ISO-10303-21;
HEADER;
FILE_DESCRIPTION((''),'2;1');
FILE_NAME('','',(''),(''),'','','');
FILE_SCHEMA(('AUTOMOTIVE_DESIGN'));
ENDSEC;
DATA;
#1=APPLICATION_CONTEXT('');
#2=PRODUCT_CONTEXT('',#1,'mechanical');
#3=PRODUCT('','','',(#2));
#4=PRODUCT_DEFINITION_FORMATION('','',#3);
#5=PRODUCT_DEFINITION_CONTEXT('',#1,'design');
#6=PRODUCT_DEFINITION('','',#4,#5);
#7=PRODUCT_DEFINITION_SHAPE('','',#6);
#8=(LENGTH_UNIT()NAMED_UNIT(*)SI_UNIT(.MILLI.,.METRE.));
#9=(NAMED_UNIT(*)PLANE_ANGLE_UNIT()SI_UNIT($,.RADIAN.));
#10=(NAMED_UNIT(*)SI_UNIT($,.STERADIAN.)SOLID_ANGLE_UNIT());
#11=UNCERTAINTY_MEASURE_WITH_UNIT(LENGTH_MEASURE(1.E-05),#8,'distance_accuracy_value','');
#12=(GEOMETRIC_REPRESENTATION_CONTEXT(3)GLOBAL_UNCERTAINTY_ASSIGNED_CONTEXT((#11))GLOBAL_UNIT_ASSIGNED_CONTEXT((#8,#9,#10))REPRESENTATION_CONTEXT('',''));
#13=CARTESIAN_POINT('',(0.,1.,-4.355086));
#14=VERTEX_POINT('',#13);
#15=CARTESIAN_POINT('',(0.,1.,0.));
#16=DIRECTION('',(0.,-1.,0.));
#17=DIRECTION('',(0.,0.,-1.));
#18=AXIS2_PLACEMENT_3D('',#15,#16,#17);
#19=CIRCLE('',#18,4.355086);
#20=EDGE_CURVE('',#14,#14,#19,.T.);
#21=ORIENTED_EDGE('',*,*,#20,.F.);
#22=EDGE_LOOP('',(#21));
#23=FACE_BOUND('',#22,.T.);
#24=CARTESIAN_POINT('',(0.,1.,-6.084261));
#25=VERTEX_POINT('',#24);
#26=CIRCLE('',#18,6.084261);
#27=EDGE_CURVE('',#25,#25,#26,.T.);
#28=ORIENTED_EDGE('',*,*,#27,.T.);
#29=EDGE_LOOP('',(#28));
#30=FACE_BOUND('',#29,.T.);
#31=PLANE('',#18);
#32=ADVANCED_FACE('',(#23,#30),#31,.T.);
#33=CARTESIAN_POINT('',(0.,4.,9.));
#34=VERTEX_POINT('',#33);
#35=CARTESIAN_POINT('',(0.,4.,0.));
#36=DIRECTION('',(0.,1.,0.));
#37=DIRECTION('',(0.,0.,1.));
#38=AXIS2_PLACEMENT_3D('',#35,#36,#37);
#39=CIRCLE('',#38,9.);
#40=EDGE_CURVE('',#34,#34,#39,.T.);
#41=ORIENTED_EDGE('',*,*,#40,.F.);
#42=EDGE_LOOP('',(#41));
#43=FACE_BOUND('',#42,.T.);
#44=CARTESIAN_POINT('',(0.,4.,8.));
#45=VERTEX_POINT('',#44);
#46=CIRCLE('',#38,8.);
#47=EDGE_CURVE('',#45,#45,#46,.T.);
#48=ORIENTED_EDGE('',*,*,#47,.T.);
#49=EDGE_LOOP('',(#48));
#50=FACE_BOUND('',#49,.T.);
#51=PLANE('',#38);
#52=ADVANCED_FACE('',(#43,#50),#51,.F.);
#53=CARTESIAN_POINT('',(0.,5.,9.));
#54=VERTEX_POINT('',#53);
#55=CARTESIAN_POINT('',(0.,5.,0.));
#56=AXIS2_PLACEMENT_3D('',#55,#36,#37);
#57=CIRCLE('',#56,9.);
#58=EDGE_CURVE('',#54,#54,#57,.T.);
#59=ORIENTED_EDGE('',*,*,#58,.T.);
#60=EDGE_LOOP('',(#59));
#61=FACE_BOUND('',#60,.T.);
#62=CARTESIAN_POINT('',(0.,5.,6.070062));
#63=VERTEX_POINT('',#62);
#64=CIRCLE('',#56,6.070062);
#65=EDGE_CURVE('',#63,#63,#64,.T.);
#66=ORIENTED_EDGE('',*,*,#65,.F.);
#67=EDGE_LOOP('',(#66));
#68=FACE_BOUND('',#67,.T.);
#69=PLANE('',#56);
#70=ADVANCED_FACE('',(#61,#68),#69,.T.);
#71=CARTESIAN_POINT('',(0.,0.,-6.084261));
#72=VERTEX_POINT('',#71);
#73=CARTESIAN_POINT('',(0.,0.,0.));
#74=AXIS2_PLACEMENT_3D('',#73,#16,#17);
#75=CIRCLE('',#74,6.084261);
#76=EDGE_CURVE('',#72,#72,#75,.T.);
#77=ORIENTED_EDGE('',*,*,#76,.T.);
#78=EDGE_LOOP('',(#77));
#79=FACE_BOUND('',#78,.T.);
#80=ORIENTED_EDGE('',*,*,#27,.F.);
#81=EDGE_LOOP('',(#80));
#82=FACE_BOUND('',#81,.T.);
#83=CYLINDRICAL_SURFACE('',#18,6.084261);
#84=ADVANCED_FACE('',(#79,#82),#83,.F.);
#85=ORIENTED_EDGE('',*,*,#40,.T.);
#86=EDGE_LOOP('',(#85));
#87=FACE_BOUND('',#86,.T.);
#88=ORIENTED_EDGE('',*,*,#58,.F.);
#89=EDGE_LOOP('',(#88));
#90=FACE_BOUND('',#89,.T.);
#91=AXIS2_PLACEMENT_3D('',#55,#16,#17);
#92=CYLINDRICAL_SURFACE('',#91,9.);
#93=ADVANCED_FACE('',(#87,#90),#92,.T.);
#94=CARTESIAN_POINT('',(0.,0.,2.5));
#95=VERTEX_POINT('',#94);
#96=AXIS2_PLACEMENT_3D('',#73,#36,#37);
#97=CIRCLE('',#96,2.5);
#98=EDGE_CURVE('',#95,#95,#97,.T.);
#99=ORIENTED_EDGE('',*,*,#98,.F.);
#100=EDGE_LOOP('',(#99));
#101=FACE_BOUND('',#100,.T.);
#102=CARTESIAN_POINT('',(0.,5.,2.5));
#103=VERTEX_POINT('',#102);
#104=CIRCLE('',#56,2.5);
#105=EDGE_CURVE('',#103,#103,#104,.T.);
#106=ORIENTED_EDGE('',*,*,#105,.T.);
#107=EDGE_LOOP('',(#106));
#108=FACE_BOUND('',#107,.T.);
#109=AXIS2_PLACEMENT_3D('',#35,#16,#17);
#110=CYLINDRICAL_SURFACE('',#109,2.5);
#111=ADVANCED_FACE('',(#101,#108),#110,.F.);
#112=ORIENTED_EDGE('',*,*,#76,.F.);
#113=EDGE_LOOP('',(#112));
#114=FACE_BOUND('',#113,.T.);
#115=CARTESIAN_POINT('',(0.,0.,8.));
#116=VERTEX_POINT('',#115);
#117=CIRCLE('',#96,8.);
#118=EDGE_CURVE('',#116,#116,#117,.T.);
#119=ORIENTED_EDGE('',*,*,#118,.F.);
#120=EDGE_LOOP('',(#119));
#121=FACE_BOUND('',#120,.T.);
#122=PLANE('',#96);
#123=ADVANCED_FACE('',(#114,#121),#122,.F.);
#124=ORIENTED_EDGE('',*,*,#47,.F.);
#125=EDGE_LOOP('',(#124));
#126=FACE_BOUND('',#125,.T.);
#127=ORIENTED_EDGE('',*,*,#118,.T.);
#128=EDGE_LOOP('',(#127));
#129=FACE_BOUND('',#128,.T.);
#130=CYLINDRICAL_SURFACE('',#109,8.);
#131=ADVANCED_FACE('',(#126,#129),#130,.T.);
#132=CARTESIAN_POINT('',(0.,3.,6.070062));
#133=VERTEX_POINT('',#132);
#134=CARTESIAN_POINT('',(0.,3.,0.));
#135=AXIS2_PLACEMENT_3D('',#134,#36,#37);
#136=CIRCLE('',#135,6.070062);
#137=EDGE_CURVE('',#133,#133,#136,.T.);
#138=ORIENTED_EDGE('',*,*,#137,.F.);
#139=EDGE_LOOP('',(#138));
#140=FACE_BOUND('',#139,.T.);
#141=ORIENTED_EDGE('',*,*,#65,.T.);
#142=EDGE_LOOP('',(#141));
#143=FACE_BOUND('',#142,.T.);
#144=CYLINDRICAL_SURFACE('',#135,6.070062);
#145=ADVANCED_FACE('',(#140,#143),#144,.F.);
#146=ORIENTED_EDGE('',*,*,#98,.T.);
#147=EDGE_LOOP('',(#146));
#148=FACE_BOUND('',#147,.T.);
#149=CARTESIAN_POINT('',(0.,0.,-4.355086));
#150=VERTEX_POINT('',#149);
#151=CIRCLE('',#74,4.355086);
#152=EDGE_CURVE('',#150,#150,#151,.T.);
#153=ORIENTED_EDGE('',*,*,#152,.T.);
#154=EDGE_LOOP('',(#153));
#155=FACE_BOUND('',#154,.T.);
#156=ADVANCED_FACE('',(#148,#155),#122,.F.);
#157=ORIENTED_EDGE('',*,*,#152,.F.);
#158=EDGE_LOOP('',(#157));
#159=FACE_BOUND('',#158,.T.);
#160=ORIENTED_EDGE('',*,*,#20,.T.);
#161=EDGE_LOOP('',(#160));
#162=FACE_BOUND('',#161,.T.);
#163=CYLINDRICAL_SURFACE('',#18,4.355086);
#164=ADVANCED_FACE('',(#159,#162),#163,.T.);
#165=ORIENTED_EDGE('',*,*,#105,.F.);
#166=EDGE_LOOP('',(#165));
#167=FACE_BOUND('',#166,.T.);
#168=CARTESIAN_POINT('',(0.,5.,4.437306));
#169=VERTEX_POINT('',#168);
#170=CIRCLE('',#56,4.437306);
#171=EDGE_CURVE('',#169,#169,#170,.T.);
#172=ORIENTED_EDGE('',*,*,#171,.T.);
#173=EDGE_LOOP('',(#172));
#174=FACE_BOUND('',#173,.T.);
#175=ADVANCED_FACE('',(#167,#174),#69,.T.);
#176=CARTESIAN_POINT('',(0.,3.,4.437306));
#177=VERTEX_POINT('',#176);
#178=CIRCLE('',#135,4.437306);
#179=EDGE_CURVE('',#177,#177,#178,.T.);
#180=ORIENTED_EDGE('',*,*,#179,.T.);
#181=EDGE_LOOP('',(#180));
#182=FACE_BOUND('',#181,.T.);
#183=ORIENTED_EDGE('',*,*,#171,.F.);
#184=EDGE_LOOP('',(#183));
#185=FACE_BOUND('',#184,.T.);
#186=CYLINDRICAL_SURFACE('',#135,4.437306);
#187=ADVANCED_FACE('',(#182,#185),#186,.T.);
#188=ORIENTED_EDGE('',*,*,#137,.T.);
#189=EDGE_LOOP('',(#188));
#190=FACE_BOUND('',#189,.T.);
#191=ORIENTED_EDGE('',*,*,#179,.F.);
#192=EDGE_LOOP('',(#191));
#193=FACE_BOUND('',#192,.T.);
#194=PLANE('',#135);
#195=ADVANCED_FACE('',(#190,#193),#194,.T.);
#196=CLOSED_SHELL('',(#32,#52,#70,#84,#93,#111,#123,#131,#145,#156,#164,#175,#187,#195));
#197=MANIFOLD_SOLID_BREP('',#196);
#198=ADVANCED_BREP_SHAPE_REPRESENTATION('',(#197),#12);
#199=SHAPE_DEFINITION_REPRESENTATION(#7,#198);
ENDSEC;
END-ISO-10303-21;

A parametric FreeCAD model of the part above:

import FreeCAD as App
import Part
import Sketcher
from FreeCAD import Vector

doc = App.newDocument("Part")
body = doc.addObject("PartDesign::Body", "Body")

# Sketch on XZ plane
sketch1 = body.newObject("Sketcher::SketchObject", "Sketch")
sketch1.AttachmentSupport = (doc.getObject("XZ_Plane"), [""])
sketch1.MapMode = "FlatFace"
sketch1.addGeometry([
    Part.Circle(Vector(0, 0, 0), Vector(0, 0, 1), 8),
    Part.Circle(Vector(0, 0, 0), Vector(0, 0, 1), 2.5),
], False)
sketch1.addConstraint([
    Sketcher.Constraint("Coincident", 0, 3, -1, 1),
    Sketcher.Constraint("Coincident", 1, 3, -1, 1),
    Sketcher.Constraint("Diameter", 0, 16.0),
    Sketcher.Constraint("Diameter", 1, 5.0),
])
pad1 = body.newObject("PartDesign::Pad", "Pad")
pad1.Profile = sketch1
pad1.Length = 4
pad1.Reversed = True

# Sketch on XZ plane
sketch2 = body.newObject("Sketcher::SketchObject", "Sketch001")
sketch2.AttachmentSupport = (doc.getObject("XZ_Plane"), [""])
sketch2.MapMode = "FlatFace"
sketch2.AttachmentOffset = App.Placement(Vector(0, 0, -4), App.Rotation())
sketch2.addGeometry([
    Part.Circle(Vector(0, 0, 0), Vector(0, 0, 1), 9),
    Part.Circle(Vector(0, 0, 0), Vector(0, 0, 1), 2.5),
], False)
sketch2.addConstraint([
    Sketcher.Constraint("Coincident", 0, 3, -1, 1),
    Sketcher.Constraint("Coincident", 1, 3, -1, 1),
    Sketcher.Constraint("Diameter", 0, 18.0),
    Sketcher.Constraint("Diameter", 1, 5.0),
])
pad2 = body.newObject("PartDesign::Pad", "Pad001")
pad2.Profile = sketch2
pad2.Length = 1
pad2.Reversed = True

# Sketch on XZ plane
sketch3 = body.newObject("Sketcher::SketchObject", "Sketch002")
sketch3.AttachmentSupport = (doc.getObject("XZ_Plane"), [""])
sketch3.MapMode = "FlatFace"
sketch3.addGeometry([
    Part.Circle(Vector(0, 0, 0), Vector(0, 0, 1), 6.084261),
    Part.Circle(Vector(0, 0, 0), Vector(0, 0, 1), 4.355086),
], False)
sketch3.addConstraint([
    Sketcher.Constraint("Coincident", 0, 3, -1, 1),
    Sketcher.Constraint("Coincident", 1, 3, -1, 1),
    Sketcher.Constraint("Diameter", 1, 8.710172),
    Sketcher.Constraint("Diameter", 0, 12.168523),
])
pocket1 = body.newObject("PartDesign::Pocket", "Pocket")
pocket1.Profile = sketch3
pocket1.Length = 1

# Sketch on XZ plane
sketch4 = body.newObject("Sketcher::SketchObject", "Sketch003")
sketch4.AttachmentSupport = (doc.getObject("XZ_Plane"), [""])
sketch4.MapMode = "FlatFace"
sketch4.AttachmentOffset = App.Placement(Vector(0, 0, -5), App.Rotation())
sketch4.addGeometry([
    Part.Circle(Vector(0, 0, 0), Vector(0, 0, 1), 6.070062),
    Part.Circle(Vector(0, 0, 0), Vector(0, 0, 1), 4.437306),
], False)
sketch4.addConstraint([
    Sketcher.Constraint("Coincident", 0, 3, -1, 1),
    Sketcher.Constraint("Coincident", 1, 3, -1, 1),
    Sketcher.Constraint("Diameter", 0, 12.140125),
    Sketcher.Constraint("Diameter", 1, 8.874612),
])
pocket2 = body.newObject("PartDesign::Pocket", "Pocket001")
pocket2.Profile = sketch4
pocket2.Length = 2
pocket2.Reversed = True

doc.recompute()
